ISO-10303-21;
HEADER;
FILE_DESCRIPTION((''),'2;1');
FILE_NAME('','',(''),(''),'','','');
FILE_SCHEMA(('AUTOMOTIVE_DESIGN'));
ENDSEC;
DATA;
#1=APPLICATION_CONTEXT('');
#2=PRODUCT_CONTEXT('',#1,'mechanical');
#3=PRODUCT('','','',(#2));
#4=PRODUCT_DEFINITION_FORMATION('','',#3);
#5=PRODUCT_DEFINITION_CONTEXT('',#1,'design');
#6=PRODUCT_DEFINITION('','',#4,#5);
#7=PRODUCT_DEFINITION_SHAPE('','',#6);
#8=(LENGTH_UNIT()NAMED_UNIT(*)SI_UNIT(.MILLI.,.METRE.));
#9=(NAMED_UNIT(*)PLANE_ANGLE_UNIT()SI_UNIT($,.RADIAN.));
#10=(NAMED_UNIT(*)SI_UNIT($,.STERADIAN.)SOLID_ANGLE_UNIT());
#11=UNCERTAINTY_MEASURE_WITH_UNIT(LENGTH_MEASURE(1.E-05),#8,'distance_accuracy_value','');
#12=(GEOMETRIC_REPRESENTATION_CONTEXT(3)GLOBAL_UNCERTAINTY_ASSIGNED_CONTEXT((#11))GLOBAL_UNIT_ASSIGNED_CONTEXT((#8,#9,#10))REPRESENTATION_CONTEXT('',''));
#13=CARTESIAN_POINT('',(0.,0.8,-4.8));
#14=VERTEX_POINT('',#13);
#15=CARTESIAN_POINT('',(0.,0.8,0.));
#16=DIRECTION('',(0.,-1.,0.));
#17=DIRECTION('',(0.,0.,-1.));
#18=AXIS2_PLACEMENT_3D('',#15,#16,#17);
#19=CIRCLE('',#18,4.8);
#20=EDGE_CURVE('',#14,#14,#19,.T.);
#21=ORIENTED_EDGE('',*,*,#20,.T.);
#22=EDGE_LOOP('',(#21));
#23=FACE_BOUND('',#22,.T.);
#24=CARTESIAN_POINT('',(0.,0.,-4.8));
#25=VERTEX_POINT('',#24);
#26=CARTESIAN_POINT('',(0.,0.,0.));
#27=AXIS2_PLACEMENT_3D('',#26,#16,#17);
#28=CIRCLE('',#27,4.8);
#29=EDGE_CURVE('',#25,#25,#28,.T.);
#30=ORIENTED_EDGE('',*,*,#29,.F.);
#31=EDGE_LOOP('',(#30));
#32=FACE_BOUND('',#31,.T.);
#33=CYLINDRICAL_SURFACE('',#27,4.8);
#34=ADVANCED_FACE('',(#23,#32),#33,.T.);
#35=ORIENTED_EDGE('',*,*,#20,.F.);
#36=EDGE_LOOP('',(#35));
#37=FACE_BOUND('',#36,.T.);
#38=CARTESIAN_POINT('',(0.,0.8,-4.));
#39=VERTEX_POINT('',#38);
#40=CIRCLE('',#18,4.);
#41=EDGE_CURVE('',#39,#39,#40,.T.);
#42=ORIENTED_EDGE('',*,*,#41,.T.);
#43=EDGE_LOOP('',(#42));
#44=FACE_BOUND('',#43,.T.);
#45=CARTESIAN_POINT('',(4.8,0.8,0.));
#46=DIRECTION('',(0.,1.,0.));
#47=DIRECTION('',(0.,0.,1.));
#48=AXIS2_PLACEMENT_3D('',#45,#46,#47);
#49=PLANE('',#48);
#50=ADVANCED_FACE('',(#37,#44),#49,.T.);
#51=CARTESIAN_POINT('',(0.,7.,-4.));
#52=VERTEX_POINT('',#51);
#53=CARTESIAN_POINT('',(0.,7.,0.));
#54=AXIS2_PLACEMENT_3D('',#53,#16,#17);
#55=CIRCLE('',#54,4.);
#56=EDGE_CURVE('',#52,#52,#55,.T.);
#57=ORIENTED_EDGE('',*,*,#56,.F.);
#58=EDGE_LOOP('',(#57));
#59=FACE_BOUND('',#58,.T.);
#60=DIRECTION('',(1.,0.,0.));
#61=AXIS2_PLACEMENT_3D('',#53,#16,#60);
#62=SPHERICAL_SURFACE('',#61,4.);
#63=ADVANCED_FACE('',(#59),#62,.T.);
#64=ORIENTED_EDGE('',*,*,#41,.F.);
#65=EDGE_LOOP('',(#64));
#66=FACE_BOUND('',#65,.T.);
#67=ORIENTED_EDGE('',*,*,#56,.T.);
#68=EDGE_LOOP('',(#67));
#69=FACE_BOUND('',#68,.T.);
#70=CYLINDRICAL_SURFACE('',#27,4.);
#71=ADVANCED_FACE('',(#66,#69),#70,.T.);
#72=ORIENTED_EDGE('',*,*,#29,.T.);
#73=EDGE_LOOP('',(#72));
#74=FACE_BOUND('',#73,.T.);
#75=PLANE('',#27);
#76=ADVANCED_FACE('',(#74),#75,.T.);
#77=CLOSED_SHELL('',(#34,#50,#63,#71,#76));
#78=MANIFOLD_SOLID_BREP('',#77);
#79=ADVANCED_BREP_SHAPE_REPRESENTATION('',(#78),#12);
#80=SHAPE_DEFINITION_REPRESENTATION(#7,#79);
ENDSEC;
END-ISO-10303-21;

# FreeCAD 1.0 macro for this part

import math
import FreeCAD as App
import Part
import Sketcher
Q = App.Units.Quantity

doc = App.newDocument("Part")
body = doc.addObject("PartDesign::Body", "Body")

# Sketch on XY plane
sketch1 = body.newObject("Sketcher::SketchObject", "Sketch")
sketch1.AttachmentSupport = (doc.getObject("XY_Plane"), [""])
sketch1.MapMode = "FlatFace"
sketch1.addGeometry([
    Part.LineSegment(App.Vector(0, 0, 0), App.Vector(4.8, 0, 0)),  # 0
    Part.LineSegment(App.Vector(4.8, 0, 0), App.Vector(4.8, 0.8, 0)),  # 1
    Part.LineSegment(App.Vector(4.8, 0.8, 0), App.Vector(4, 0.8, 0)),  # 2
    Part.LineSegment(App.Vector(4, 0.8, 0), App.Vector(4, 7, 0)),  # 3
    Part.ArcOfCircle(Part.Circle(App.Vector(0, 7, 0), App.Vector(0, 0, 1), 4), math.radians(0), math.radians(90)),  # 4
    Part.LineSegment(App.Vector(0, 11, 0), App.Vector(0, 0, 0)),  # 5
], False)
sketch1.addConstraint([
    Sketcher.Constraint("Coincident", 0, 2, 1, 1),
    Sketcher.Constraint("Coincident", 1, 2, 2, 1),
    Sketcher.Constraint("Coincident", 2, 2, 3, 1),
    Sketcher.Constraint("Tangent", 3, 2, 4, 1),
    Sketcher.Constraint("Coincident", 4, 2, 5, 1),
    Sketcher.Constraint("Coincident", 5, 2, 0, 1),
    Sketcher.Constraint("Horizontal", 0),
    Sketcher.Constraint("Vertical", 1),
    Sketcher.Constraint("Horizontal", 2),
    Sketcher.Constraint("Vertical", 3),
    Sketcher.Constraint("Vertical", 5),
    Sketcher.Constraint("Coincident", 5, 2, -1, 1),
    Sketcher.Constraint("PointOnObject", 4, 3, -2),
    Sketcher.Constraint("Equal", 2, 1),
    Sketcher.Constraint("Radius", 4, Q("4 mm")),
    Sketcher.Constraint("DistanceY", 5, 2, 5, 1, Q("11 mm")),
    Sketcher.Constraint("DistanceX", 0, 1, 0, 2, Q("4.8 mm")),
])
revolution = body.newObject("PartDesign::Revolution", "Revolution")
revolution.Profile = sketch1
revolution.ReferenceAxis = (sketch1, ["V_Axis"])
revolution.Angle = 360

doc.recompute()
